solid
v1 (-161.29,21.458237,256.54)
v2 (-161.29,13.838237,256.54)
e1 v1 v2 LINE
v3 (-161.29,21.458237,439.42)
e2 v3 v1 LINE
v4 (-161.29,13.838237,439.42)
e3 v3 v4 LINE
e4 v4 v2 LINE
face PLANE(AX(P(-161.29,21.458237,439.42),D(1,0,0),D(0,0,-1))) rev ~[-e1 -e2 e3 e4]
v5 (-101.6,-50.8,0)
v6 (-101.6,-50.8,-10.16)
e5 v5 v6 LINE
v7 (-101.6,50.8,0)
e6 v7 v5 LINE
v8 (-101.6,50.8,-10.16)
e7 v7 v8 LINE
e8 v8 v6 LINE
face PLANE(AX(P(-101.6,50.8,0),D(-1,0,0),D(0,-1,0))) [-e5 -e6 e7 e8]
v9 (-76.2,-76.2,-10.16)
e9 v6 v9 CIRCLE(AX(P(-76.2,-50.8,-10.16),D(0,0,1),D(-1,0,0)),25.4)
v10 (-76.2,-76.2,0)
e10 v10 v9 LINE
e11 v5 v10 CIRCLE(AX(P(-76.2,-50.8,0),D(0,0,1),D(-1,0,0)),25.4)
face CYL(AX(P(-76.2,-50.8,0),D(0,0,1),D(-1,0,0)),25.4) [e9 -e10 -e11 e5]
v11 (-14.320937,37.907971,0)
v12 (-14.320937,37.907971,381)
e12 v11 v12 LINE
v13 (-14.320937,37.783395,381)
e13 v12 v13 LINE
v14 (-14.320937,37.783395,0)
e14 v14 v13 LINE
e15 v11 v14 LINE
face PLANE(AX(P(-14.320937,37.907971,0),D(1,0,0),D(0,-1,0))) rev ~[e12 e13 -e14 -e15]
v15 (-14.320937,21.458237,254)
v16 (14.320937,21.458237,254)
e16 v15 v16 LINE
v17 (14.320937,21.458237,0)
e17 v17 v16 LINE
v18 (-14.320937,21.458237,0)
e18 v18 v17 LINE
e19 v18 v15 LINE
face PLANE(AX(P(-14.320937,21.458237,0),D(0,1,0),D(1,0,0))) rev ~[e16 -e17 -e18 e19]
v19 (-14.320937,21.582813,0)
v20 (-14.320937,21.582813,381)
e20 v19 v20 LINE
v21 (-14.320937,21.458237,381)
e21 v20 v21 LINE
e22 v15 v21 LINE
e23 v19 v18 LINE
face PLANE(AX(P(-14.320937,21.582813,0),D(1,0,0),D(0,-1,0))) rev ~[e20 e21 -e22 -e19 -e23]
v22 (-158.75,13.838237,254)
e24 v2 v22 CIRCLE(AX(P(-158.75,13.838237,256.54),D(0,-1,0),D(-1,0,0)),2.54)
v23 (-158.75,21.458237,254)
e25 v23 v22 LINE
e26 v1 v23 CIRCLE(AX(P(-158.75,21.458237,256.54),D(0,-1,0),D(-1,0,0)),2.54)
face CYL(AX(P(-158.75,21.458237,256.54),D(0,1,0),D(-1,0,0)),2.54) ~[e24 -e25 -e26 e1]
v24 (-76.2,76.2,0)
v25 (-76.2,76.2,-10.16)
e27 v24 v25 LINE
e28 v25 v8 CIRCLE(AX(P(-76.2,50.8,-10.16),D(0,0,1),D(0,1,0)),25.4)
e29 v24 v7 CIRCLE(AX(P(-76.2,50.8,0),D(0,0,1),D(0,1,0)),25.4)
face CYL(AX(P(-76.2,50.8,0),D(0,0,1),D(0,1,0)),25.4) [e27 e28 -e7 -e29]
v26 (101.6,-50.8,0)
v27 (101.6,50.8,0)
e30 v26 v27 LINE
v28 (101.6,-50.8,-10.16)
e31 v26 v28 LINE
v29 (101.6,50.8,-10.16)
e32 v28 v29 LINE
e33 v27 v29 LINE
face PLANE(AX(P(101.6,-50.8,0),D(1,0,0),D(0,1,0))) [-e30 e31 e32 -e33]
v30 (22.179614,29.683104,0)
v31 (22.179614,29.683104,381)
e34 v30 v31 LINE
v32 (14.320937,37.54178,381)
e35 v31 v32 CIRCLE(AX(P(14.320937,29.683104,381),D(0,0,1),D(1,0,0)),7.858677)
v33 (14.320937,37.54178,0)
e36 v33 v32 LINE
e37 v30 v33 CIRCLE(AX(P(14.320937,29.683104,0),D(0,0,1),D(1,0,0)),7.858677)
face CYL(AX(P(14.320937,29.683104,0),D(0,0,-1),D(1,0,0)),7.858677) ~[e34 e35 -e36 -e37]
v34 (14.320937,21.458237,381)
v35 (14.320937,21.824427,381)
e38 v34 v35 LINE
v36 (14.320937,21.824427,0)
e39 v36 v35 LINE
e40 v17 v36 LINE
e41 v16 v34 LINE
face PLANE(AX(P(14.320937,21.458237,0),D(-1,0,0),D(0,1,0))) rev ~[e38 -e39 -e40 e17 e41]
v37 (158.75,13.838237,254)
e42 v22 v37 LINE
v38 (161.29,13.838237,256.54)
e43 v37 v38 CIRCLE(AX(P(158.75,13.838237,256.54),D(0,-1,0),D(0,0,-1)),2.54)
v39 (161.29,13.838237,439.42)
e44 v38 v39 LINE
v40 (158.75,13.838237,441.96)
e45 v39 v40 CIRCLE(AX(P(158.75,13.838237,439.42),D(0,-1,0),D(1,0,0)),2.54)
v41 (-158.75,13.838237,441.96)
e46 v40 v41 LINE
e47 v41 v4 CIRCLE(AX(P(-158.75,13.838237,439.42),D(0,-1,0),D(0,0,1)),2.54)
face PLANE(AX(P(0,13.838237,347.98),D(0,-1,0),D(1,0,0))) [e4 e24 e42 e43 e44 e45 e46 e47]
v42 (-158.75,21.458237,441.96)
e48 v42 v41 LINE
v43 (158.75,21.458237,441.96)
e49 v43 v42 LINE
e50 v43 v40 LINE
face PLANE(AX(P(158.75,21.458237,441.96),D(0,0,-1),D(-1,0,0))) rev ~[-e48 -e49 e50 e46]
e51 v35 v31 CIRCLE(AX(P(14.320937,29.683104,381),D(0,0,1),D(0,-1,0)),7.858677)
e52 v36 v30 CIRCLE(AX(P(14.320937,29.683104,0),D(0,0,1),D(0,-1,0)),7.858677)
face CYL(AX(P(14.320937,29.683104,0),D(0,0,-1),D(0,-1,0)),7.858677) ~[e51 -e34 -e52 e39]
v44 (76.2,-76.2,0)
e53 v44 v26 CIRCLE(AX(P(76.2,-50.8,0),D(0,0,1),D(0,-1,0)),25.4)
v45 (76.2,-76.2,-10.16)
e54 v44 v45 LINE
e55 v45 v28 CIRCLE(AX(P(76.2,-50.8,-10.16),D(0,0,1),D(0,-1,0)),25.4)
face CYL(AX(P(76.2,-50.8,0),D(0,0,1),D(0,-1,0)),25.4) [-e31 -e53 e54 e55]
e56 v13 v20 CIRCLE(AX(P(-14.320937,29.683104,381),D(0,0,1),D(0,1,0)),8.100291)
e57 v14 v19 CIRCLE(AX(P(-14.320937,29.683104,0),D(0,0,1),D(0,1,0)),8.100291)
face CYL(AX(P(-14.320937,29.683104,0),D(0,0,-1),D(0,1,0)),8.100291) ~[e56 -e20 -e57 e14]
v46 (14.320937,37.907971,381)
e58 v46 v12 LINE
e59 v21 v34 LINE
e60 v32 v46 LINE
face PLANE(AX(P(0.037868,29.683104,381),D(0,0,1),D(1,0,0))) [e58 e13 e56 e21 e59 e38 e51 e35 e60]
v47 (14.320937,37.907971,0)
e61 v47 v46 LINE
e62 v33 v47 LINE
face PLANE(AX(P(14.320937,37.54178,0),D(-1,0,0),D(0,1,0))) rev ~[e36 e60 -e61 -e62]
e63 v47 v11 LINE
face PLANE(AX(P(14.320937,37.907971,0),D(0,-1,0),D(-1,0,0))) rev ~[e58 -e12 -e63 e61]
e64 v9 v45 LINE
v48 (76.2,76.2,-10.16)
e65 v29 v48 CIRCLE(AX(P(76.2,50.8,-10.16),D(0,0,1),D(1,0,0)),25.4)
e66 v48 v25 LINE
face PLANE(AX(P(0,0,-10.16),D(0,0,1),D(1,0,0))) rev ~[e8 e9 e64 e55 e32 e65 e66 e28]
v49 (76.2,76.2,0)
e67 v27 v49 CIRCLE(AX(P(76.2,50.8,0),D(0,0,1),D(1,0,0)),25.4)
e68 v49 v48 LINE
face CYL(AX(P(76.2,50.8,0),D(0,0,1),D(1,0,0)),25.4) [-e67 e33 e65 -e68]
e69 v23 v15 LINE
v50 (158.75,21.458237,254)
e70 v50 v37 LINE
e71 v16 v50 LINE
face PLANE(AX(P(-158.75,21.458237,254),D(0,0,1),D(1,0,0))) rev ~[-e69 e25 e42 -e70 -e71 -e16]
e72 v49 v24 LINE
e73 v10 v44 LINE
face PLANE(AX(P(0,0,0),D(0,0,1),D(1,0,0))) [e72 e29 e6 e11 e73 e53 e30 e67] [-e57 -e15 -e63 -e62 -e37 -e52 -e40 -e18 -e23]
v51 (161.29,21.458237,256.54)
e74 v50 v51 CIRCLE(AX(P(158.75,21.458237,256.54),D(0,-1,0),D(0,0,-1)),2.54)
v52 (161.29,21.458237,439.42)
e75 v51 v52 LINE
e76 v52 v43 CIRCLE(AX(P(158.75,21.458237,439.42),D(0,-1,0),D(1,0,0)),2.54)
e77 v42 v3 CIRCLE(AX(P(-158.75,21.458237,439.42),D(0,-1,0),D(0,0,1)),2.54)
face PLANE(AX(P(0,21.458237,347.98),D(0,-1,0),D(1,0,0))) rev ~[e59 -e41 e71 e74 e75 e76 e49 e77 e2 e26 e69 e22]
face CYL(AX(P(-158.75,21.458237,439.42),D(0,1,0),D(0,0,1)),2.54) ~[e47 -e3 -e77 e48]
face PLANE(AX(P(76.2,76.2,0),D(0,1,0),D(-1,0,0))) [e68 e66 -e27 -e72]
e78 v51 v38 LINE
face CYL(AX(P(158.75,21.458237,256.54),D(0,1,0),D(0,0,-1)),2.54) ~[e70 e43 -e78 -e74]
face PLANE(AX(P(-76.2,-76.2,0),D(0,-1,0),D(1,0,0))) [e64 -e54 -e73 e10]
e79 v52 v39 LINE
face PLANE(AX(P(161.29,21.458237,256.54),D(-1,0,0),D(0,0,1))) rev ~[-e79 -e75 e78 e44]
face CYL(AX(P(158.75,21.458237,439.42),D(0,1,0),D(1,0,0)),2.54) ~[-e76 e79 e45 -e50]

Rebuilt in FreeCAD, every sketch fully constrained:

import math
import FreeCAD as App
import Part
import Sketcher
Q = App.Units.Quantity

doc = App.newDocument("Part")
body = doc.addObject("PartDesign::Body", "Body")

sketch1 = doc.addObject("Sketcher::SketchObject", "Sketch")
body.addObject(sketch1)
sketch1.AttachmentSupport = (doc.XY_Plane, [""])
sketch1.MapMode = "FlatFace"
sketch1.addGeometry(Part.LineSegment(App.Vector(-76, -76, 0), App.Vector(76, -76, 0)), False)
sketch1.addGeometry(Part.ArcOfCircle(Part.Circle(App.Vector(76, -51, 0), App.Vector(0, 0, 1), 25), math.radians(-90), math.radians(0)), False)
sketch1.addGeometry(Part.LineSegment(App.Vector(102, -51, 0), App.Vector(102, 51, 0)), False)
sketch1.addGeometry(Part.ArcOfCircle(Part.Circle(App.Vector(76, 51, 0), App.Vector(0, 0, 1), 25), math.radians(0), math.radians(90)), False)
sketch1.addGeometry(Part.LineSegment(App.Vector(76, 76, 0), App.Vector(-76, 76, 0)), False)
sketch1.addGeometry(Part.ArcOfCircle(Part.Circle(App.Vector(-76, 51, 0), App.Vector(0, 0, 1), 25), math.radians(90), math.radians(180)), False)
sketch1.addGeometry(Part.LineSegment(App.Vector(-102, 51, 0), App.Vector(-102, -51, 0)), False)
sketch1.addGeometry(Part.ArcOfCircle(Part.Circle(App.Vector(-76, -51, 0), App.Vector(0, 0, 1), 25), math.radians(180), math.radians(270)), False)
sketch1.addConstraint(Sketcher.Constraint("Tangent", 0, 2, 1, 1))
sketch1.addConstraint(Sketcher.Constraint("Tangent", 1, 2, 2, 1))
sketch1.addConstraint(Sketcher.Constraint("Tangent", 2, 2, 3, 1))
sketch1.addConstraint(Sketcher.Constraint("Tangent", 3, 2, 4, 1))
sketch1.addConstraint(Sketcher.Constraint("Tangent", 4, 2, 5, 1))
sketch1.addConstraint(Sketcher.Constraint("Tangent", 5, 2, 6, 1))
sketch1.addConstraint(Sketcher.Constraint("Tangent", 6, 2, 7, 1))
sketch1.addConstraint(Sketcher.Constraint("Tangent", 7, 2, 0, 1))
sketch1.addConstraint(Sketcher.Constraint("Horizontal", 0))
sketch1.addConstraint(Sketcher.Constraint("Vertical", 2))
sketch1.addConstraint(Sketcher.Constraint("Horizontal", 4))
sketch1.addConstraint(Sketcher.Constraint("Vertical", 6))
sketch1.addConstraint(Sketcher.Constraint("Equal", 1, 3))
sketch1.addConstraint(Sketcher.Constraint("Equal", 3, 5))
sketch1.addConstraint(Sketcher.Constraint("Equal", 5, 7))
sketch1.addConstraint(Sketcher.Constraint("Symmetric", 1, 3, 5, 3, -1, 1))
sketch1.addConstraint(Sketcher.Constraint("Radius", 1, Q("1 in")))
sketch1.addConstraint(Sketcher.Constraint("DistanceX", 0, 1, 0, 2, Q("6 in")))
sketch1.addConstraint(Sketcher.Constraint("DistanceY", 2, 1, 2, 2, Q("4 in")))
pad1 = doc.addObject("PartDesign::Pad", "Pad")
body.addObject(pad1)
pad1.Profile = sketch1
pad1.Length = Q("0.4 in")
pad1.Reversed = True

sketch2 = doc.addObject("Sketcher::SketchObject", "Sketch001")
body.addObject(sketch2)
sketch2.AttachmentSupport = (doc.XY_Plane, [""])
sketch2.MapMode = "FlatFace"
sketch2.addGeometry(Part.LineSegment(App.Vector(-14.32, 21.46, 0), App.Vector(14.32, 21.46, 0)), False)
sketch2.addGeometry(Part.LineSegment(App.Vector(14.32, 21.46, 0), App.Vector(14.32, 21.82, 0)), False)
sketch2.addGeometry(Part.ArcOfCircle(Part.Circle(App.Vector(14.32, 29.68, 0), App.Vector(0, 0, 1), 7.86), math.radians(-90), math.radians(0)), False)
sketch2.addGeometry(Part.ArcOfCircle(Part.Circle(App.Vector(14.32, 29.68, 0), App.Vector(0, 0, 1), 7.86), math.radians(0), math.radians(90)), False)
sketch2.addGeometry(Part.LineSegment(App.Vector(14.32, 37.54, 0), App.Vector(14.32, 37.91, 0)), False)
sketch2.addGeometry(Part.LineSegment(App.Vector(14.32, 37.91, 0), App.Vector(-14.32, 37.91, 0)), False)
sketch2.addGeometry(Part.LineSegment(App.Vector(-14.32, 37.91, 0), App.Vector(-14.32, 37.78, 0)), False)
sketch2.addGeometry(Part.ArcOfCircle(Part.Circle(App.Vector(-14.32, 29.68, 0), App.Vector(0, 0, 1), 8.1), math.radians(90), math.radians(270)), False)
sketch2.addGeometry(Part.LineSegment(App.Vector(-14.32, 21.58, 0), App.Vector(-14.32, 21.46, 0)), False)
sketch2.addConstraint(Sketcher.Constraint("Coincident", 0, 2, 1, 1))
sketch2.addConstraint(Sketcher.Constraint("Coincident", 1, 2, 2, 1))
sketch2.addConstraint(Sketcher.Constraint("Tangent", 2, 2, 3, 1))
sketch2.addConstraint(Sketcher.Constraint("Coincident", 3, 2, 4, 1))
sketch2.addConstraint(Sketcher.Constraint("Coincident", 4, 2, 5, 1))
sketch2.addConstraint(Sketcher.Constraint("Coincident", 5, 2, 6, 1))
sketch2.addConstraint(Sketcher.Constraint("Coincident", 6, 2, 7, 1))
sketch2.addConstraint(Sketcher.Constraint("Coincident", 7, 2, 8, 1))
sketch2.addConstraint(Sketcher.Constraint("Coincident", 8, 2, 0, 1))
sketch2.addConstraint(Sketcher.Constraint("Horizontal", 0))
sketch2.addConstraint(Sketcher.Constraint("Vertical", 1))
sketch2.addConstraint(Sketcher.Constraint("Vertical", 4))
sketch2.addConstraint(Sketcher.Constraint("Horizontal", 5))
sketch2.addConstraint(Sketcher.Constraint("Vertical", 6))
sketch2.addConstraint(Sketcher.Constraint("Vertical", 8))
sketch2.addConstraint(Sketcher.Constraint("Equal", 2, 3))
sketch2.addConstraint(Sketcher.Constraint("Symmetric", 2, 3, 7, 3, -2))
sketch2.addConstraint(Sketcher.Constraint("Horizontal", 7, 3, 2, 2))
sketch2.addConstraint(Sketcher.Constraint("Vertical", 3, 3, 0, 2))
sketch2.addConstraint(Sketcher.Constraint("Vertical", 1, 2, 3, 2))
sketch2.addConstraint(Sketcher.Constraint("Vertical", 7, 3, 5, 2))
sketch2.addConstraint(Sketcher.Constraint("Vertical", 6, 2, 7, 2))
sketch2.addConstraint(Sketcher.Constraint("Equal", 1, 4))
sketch2.addConstraint(Sketcher.Constraint("Radius", 7, 8.100291))
sketch2.addConstraint(Sketcher.Constraint("Radius", 2, 7.858677))
sketch2.addConstraint(Sketcher.Constraint("DistanceY", 1, 1, 1, 2, 0.366191))
sketch2.addConstraint(Sketcher.Constraint("DistanceX", 0, 1, 0, 2, 28.641874))
sketch2.addConstraint(Sketcher.Constraint("DistanceY", -1, 1, 3, 2, 37.54178))
pad2 = doc.addObject("PartDesign::Pad", "Pad001")
body.addObject(pad2)
pad2.Profile = sketch2
pad2.Length = Q("15 in")

sketch3 = doc.addObject("Sketcher::SketchObject", "Sketch002")
body.addObject(sketch3)
sketch3.AttachmentSupport = (doc.XZ_Plane, [""])
sketch3.MapMode = "FlatFace"
sketch3.AttachmentOffset = App.Placement(App.Vector(0, 0, -21.458237), App.Rotation())
sketch3.addGeometry(Part.LineSegment(App.Vector(-158.8, 254, 0), App.Vector(158.8, 254, 0)), False)
sketch3.addGeometry(Part.ArcOfCircle(Part.Circle(App.Vector(158.8, 256.5, 0), App.Vector(0, 0, 1), 2.5), math.radians(-90), math.radians(0)), False)
sketch3.addGeometry(Part.LineSegment(App.Vector(161.3, 256.5, 0), App.Vector(161.3, 439.4, 0)), False)
sketch3.addGeometry(Part.ArcOfCircle(Part.Circle(App.Vector(158.8, 439.4, 0), App.Vector(0, 0, 1), 2.5), math.radians(0), math.radians(90)), False)
sketch3.addGeometry(Part.LineSegment(App.Vector(158.8, 442, 0), App.Vector(-158.8, 442, 0)), False)
sketch3.addGeometry(Part.ArcOfCircle(Part.Circle(App.Vector(-158.8, 439.4, 0), App.Vector(0, 0, 1), 2.5), math.radians(90), math.radians(180)), False)
sketch3.addGeometry(Part.LineSegment(App.Vector(-161.3, 439.4, 0), App.Vector(-161.3, 256.5, 0)), False)
sketch3.addGeometry(Part.ArcOfCircle(Part.Circle(App.Vector(-158.8, 256.5, 0), App.Vector(0, 0, 1), 2.5), math.radians(180), math.radians(270)), False)
sketch3.addConstraint(Sketcher.Constraint("Tangent", 0, 2, 1, 1))
sketch3.addConstraint(Sketcher.Constraint("Tangent", 1, 2, 2, 1))
sketch3.addConstraint(Sketcher.Constraint("Tangent", 2, 2, 3, 1))
sketch3.addConstraint(Sketcher.Constraint("Tangent", 3, 2, 4, 1))
sketch3.addConstraint(Sketcher.Constraint("Tangent", 4, 2, 5, 1))
sketch3.addConstraint(Sketcher.Constraint("Tangent", 5, 2, 6, 1))
sketch3.addConstraint(Sketcher.Constraint("Tangent", 6, 2, 7, 1))
sketch3.addConstraint(Sketcher.Constraint("Tangent", 7, 2, 0, 1))
sketch3.addConstraint(Sketcher.Constraint("Horizontal", 0))
sketch3.addConstraint(Sketcher.Constraint("Vertical", 2))
sketch3.addConstraint(Sketcher.Constraint("Horizontal", 4))
sketch3.addConstraint(Sketcher.Constraint("Vertical", 6))
sketch3.addConstraint(Sketcher.Constraint("Equal", 1, 3))
sketch3.addConstraint(Sketcher.Constraint("Equal", 3, 5))
sketch3.addConstraint(Sketcher.Constraint("Equal", 5, 7))
sketch3.addConstraint(Sketcher.Constraint("Radius", 1, Q("0.1 in")))
sketch3.addConstraint(Sketcher.Constraint("DistanceX", 0, 1, 0, 2, Q("12.5 in")))
sketch3.addConstraint(Sketcher.Constraint("DistanceY", 2, 1, 2, 2, Q("7.2 in")))
sketch3.addConstraint(Sketcher.Constraint("DistanceY", -1, 1, 0, 2, Q("10 in")))
sketch3.addConstraint(Sketcher.Constraint("DistanceX", -1, 1, 1, 3, Q("6.25 in")))
pad3 = doc.addObject("PartDesign::Pad", "Pad002")
body.addObject(pad3)
pad3.Profile = sketch3
pad3.Length = Q("0.3 in")

doc.recompute()
